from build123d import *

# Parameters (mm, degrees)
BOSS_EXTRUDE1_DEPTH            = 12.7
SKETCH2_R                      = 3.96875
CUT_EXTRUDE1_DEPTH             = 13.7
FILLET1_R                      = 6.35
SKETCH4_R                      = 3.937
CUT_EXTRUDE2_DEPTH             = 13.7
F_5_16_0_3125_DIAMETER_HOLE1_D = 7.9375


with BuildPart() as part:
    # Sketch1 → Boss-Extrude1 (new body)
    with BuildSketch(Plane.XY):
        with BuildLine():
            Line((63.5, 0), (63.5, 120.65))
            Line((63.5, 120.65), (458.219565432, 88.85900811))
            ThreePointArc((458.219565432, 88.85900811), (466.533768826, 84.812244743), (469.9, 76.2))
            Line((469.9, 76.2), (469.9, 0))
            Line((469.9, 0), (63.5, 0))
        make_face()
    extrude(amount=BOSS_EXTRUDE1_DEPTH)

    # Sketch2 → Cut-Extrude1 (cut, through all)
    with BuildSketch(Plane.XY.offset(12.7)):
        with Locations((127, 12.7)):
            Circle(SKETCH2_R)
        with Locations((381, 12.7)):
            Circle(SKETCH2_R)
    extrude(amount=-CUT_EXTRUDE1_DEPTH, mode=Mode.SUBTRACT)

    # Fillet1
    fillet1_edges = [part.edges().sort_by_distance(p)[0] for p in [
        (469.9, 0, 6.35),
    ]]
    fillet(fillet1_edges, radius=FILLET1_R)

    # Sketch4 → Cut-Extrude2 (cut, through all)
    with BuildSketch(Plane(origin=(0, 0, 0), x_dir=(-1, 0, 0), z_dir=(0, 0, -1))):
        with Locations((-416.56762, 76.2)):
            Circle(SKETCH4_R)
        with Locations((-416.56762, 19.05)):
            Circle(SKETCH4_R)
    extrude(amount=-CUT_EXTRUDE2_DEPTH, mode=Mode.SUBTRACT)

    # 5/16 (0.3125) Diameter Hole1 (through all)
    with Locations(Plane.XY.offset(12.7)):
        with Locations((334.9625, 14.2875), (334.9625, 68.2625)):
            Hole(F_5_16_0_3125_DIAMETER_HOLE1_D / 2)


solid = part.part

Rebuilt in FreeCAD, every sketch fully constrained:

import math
import FreeCAD as App
import Part
import Sketcher
from FreeCAD import Vector
Q = App.Units.Quantity


def edges_at(feature, points):
    """Names of the edges that pass closest to the given points."""
    edges = feature.Shape.Edges
    near = lambda p: min(range(len(edges)), key=lambda i: edges[i].distToShape(Part.Vertex(*p))[0])
    return sorted({f"Edge{near(p) + 1}" for p in points})

doc = App.newDocument("Part")
params = doc.addObject("Spreadsheet::Sheet", "Params")
for row, (alias, value) in enumerate([
    ("sketch1_radius", "0.5 in"),
    ("sketch1_width", "16 in"),
    ("sketch1_height", "3 in"),
    ("sketch1_height2", "4.75 in"),
    ("pad1_length", "0.5 in"),
    ("sketch2_diameter", "0.3125 in"),
    ("fillet_radius", "0.25 in"),
    ("sketch3_diameter", "0.31 in"),
    ("sketch4_diameter", "0.3125 in"),
    ("hole_diameter", "0.3125 in"),
], start=1):
    params.set(f"A{row}", alias)
    params.set(f"B{row}", "=" + value)
    params.setAlias(f"B{row}", alias)

body = doc.addObject("PartDesign::Body", "Body")

sketch1 = body.newObject("Sketcher::SketchObject", "Sketch")
sketch1.AttachmentSupport = (doc.getObject("XY_Plane"), [""])
sketch1.MapMode = "FlatFace"
sketch1.addGeometry([
    Part.LineSegment(Vector(64, 121, 0), Vector(64, 0, 0)),
    Part.LineSegment(Vector(64, 0, 0), Vector(470, 0, 0)),
    Part.LineSegment(Vector(470, 0, 0), Vector(470, 76, 0)),
    Part.ArcOfCircle(Part.Circle(Vector(457, 76, 0), Vector(0, 0, 1), 13), math.radians(0), math.radians(85)),
    Part.LineSegment(Vector(458, 89, 0), Vector(64, 121, 0)),
], False)
sketch1.addConstraint([
    Sketcher.Constraint("Coincident", 0, 2, 1, 1),
    Sketcher.Constraint("Coincident", 1, 2, 2, 1),
    Sketcher.Constraint("Tangent", 2, 2, 3, 1),
    Sketcher.Constraint("Tangent", 3, 2, 4, 1),
    Sketcher.Constraint("Coincident", 4, 2, 0, 1),
    Sketcher.Constraint("Vertical", 0),
    Sketcher.Constraint("Horizontal", 1),
    Sketcher.Constraint("Vertical", 2),
    Sketcher.Constraint("PointOnObject", 0, 2, -1),
    Sketcher.Constraint("Radius", 3, Q("0.5 in")),
    Sketcher.Constraint("DistanceX", 1, 1, 1, 2, Q("16 in")),
    Sketcher.Constraint("DistanceY", 2, 1, 2, 2, Q("3 in")),
    Sketcher.Constraint("DistanceX", -1, 1, 3, 3, Q("18 in")),
    Sketcher.Constraint("DistanceY", 0, 2, 0, 1, Q("4.75 in")),
])
sketch1.setExpression("Constraints[9]", "Params.sketch1_radius")
sketch1.setExpression("Constraints[10]", "Params.sketch1_width")
sketch1.setExpression("Constraints[11]", "Params.sketch1_height")
sketch1.setExpression("Constraints[13]", "Params.sketch1_height2")
pad1 = body.newObject("PartDesign::Pad", "Pad")
pad1.Profile = sketch1
pad1.setExpression("Length", "Params.pad1_length")

sketch2 = body.newObject("Sketcher::SketchObject", "Sketch001")
sketch2.AttachmentSupport = (doc.getObject("XY_Plane"), [""])
sketch2.MapMode = "FlatFace"
sketch2.AttachmentOffset = App.Placement(Vector(0, 0, 0.5 * 25.4), App.Rotation())
sketch2.addGeometry([
    Part.Circle(Vector(127, 12.7, 0), Vector(0, 0, 1), 4),
    Part.Circle(Vector(381, 12.7, 0), Vector(0, 0, 1), 4),
], False)
sketch2.addConstraint([
    Sketcher.Constraint("Equal", 0, 1),
    Sketcher.Constraint("Horizontal", 0, 3, 1, 3),
    Sketcher.Constraint("Diameter", 0, Q("0.3125 in")),
    Sketcher.Constraint("DistanceX", -1, 1, 0, 3, Q("5 in")),
    Sketcher.Constraint("DistanceX", -1, 1, 1, 3, Q("15 in")),
    Sketcher.Constraint("DistanceY", -1, 1, 0, 3, Q("0.5 in")),
])
sketch2.setExpression("Constraints[2]", "Params.sketch2_diameter")
pocket1 = body.newObject("PartDesign::Pocket", "Pocket")
pocket1.Profile = sketch2
pocket1.Type = "ThroughAll"
doc.recompute()

fillet = body.newObject("PartDesign::Fillet", "Fillet")
fillet.Base = (pocket1, edges_at(pocket1, [(469.9, 0, 6.35)]))
fillet.setExpression("Radius", "Params.fillet_radius")

sketch3 = body.newObject("Sketcher::SketchObject", "Sketch002")
sketch3.AttachmentSupport = (doc.getObject("XY_Plane"), [""])
sketch3.MapMode = "FlatFace"
sketch3.addGeometry([
    Part.Circle(Vector(416.6, 76.2, 0), Vector(0, 0, 1), 3.9),
    Part.Circle(Vector(416.6, 19.1, 0), Vector(0, 0, 1), 3.9),
], False)
sketch3.addConstraint([
    Sketcher.Constraint("Equal", 0, 1),
    Sketcher.Constraint("Vertical", 0, 3, 1, 3),
    Sketcher.Constraint("Diameter", 0, Q("0.31 in")),
    Sketcher.Constraint("DistanceY", -1, 1, 0, 3, Q("3 in")),
    Sketcher.Constraint("DistanceY", -1, 1, 1, 3, Q("0.75 in")),
    Sketcher.Constraint("DistanceX", -1, 1, 0, 3, Q("16.4003 in")),
])
sketch3.setExpression("Constraints[2]", "Params.sketch3_diameter")
pocket2 = body.newObject("PartDesign::Pocket", "Pocket001")
pocket2.Profile = sketch3
pocket2.Type = "ThroughAll"
pocket2.Reversed = True

sketch4 = body.newObject("Sketcher::SketchObject", "Sketch003")
sketch4.AttachmentSupport = (doc.getObject("XY_Plane"), [""])
sketch4.MapMode = "FlatFace"
sketch4.AttachmentOffset = App.Placement(Vector(0, 0, 0.5 * 25.4), App.Rotation())
sketch4.addGeometry([
    Part.Circle(Vector(335, 14.3, 0), Vector(0, 0, 1), 4),
    Part.Circle(Vector(335, 68.3, 0), Vector(0, 0, 1), 4),
], False)
sketch4.addConstraint([
    Sketcher.Constraint("Equal", 0, 1),
    Sketcher.Constraint("Vertical", 0, 3, 1, 3),
    Sketcher.Constraint("Diameter", 0, Q("0.3125 in")),
    Sketcher.Constraint("DistanceX", -1, 1, 0, 3, Q("13.1875 in")),
    Sketcher.Constraint("DistanceY", -1, 1, 0, 3, Q("0.5625 in")),
    Sketcher.Constraint("DistanceY", -1, 1, 1, 3, Q("2.6875 in")),
])
sketch4.setExpression("Constraints[2]", "Params.sketch4_diameter")
doc.recompute()
hole = body.newObject("PartDesign::Hole", "Hole")
hole.Profile = sketch4
hole.ThreadType = "None"
hole.setExpression("Diameter", "Params.hole_diameter")
hole.DepthType = "ThroughAll"

doc.recompute()
